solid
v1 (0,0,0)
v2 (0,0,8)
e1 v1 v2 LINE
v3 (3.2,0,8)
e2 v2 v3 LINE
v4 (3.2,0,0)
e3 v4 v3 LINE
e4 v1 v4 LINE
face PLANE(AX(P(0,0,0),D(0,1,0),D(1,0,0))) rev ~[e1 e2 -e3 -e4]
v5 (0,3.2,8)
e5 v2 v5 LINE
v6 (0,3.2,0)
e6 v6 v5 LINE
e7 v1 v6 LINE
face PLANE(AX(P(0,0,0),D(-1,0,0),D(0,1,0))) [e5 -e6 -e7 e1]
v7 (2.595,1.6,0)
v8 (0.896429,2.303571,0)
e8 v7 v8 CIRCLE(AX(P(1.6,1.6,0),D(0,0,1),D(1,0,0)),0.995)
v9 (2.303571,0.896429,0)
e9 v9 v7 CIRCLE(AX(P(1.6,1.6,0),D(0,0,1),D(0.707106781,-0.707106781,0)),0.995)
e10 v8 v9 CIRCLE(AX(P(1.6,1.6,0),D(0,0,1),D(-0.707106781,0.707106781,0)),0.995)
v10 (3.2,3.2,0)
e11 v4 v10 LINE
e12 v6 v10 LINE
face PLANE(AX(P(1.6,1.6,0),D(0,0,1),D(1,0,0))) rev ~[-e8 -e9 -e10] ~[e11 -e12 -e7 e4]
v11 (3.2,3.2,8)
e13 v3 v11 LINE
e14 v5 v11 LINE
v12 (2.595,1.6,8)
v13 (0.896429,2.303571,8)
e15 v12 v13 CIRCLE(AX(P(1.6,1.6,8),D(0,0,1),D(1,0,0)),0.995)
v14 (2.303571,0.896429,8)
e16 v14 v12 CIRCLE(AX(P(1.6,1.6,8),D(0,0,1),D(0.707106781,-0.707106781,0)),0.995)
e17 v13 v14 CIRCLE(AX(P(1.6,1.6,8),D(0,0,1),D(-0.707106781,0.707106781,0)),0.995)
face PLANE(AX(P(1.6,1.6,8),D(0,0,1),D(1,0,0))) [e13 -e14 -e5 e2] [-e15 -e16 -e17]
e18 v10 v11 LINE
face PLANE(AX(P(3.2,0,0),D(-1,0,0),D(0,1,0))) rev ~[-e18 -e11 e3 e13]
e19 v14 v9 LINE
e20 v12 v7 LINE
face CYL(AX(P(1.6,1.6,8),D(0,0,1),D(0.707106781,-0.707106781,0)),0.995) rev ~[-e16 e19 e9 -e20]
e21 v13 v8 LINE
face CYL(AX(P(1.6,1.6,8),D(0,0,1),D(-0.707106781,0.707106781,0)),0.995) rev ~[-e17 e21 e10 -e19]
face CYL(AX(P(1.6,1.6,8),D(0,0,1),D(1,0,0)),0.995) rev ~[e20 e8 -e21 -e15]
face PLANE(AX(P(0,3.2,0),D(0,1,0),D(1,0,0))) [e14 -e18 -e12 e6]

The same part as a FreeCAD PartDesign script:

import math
import FreeCAD as App
import Part
import Sketcher
from FreeCAD import Vector

doc = App.newDocument("Part")
body = doc.addObject("PartDesign::Body", "Body")

# Sketch on XY plane
sketch1 = body.newObject("Sketcher::SketchObject", "Sketch")
sketch1.AttachmentSupport = (doc.getObject("XY_Plane"), [""])
sketch1.MapMode = "FlatFace"
sketch1.addGeometry([
    Part.LineSegment(Vector(0, 3.2, 0), Vector(0, 0, 0)),
    Part.LineSegment(Vector(0, 0, 0), Vector(3.2, 0, 0)),
    Part.LineSegment(Vector(3.2, 0, 0), Vector(3.2, 3.2, 0)),
    Part.LineSegment(Vector(3.2, 3.2, 0), Vector(0, 3.2, 0)),
], False)
sketch1.addConstraint([
    Sketcher.Constraint("Coincident", 0, 2, 1, 1),
    Sketcher.Constraint("Coincident", 1, 2, 2, 1),
    Sketcher.Constraint("Coincident", 2, 2, 3, 1),
    Sketcher.Constraint("Coincident", 3, 2, 0, 1),
    Sketcher.Constraint("Vertical", 0),
    Sketcher.Constraint("Horizontal", 1),
    Sketcher.Constraint("Vertical", 2),
    Sketcher.Constraint("Horizontal", 3),
    Sketcher.Constraint("Coincident", 0, 2, -1, 1),
    Sketcher.Constraint("Equal", 3, 0),
    Sketcher.Constraint("DistanceX", 1, 1, 1, 2, 3.2),
])
pad1 = body.newObject("PartDesign::Pad", "Pad")
pad1.Profile = sketch1
pad1.Length = 8

# Sketch on XY plane
sketch2 = body.newObject("Sketcher::SketchObject", "Sketch001")
sketch2.AttachmentSupport = (doc.getObject("XY_Plane"), [""])
sketch2.MapMode = "FlatFace"
sketch2.AttachmentOffset = App.Placement(Vector(0, 0, 8), App.Rotation())
sketch2.addGeometry([
    Part.ArcOfCircle(Part.Circle(Vector(1.6, 1.6, 0), Vector(0, 0, 1), 1), math.radians(135), math.radians(315)),
    Part.ArcOfCircle(Part.Circle(Vector(1.6, 1.6, 0), Vector(0, 0, 1), 1), math.radians(-45), math.radians(0)),
    Part.ArcOfCircle(Part.Circle(Vector(1.6, 1.6, 0), Vector(0, 0, 1), 1), math.radians(0), math.radians(135)),
], False)
sketch2.addConstraint([
    Sketcher.Constraint("Tangent", 0, 2, 1, 1),
    Sketcher.Constraint("Tangent", 1, 2, 2, 1),
    Sketcher.Constraint("Tangent", 2, 2, 0, 1),
    Sketcher.Constraint("Horizontal", 2, 3, 1, 2),
    Sketcher.Constraint("Radius", 0, 0.995),
    Sketcher.Constraint("DistanceX", -1, 1, 0, 3, 1.6),
    Sketcher.Constraint("DistanceY", -1, 1, 0, 3, 1.6),
    Sketcher.Constraint("DistanceX", -1, 1, 0, 2, 2.303571),
    Sketcher.Constraint("DistanceX", -1, 1, 2, 2, 0.896429),
])
pocket1 = body.newObject("PartDesign::Pocket", "Pocket")
pocket1.Profile = sketch2
pocket1.Length = 25

doc.recompute()
